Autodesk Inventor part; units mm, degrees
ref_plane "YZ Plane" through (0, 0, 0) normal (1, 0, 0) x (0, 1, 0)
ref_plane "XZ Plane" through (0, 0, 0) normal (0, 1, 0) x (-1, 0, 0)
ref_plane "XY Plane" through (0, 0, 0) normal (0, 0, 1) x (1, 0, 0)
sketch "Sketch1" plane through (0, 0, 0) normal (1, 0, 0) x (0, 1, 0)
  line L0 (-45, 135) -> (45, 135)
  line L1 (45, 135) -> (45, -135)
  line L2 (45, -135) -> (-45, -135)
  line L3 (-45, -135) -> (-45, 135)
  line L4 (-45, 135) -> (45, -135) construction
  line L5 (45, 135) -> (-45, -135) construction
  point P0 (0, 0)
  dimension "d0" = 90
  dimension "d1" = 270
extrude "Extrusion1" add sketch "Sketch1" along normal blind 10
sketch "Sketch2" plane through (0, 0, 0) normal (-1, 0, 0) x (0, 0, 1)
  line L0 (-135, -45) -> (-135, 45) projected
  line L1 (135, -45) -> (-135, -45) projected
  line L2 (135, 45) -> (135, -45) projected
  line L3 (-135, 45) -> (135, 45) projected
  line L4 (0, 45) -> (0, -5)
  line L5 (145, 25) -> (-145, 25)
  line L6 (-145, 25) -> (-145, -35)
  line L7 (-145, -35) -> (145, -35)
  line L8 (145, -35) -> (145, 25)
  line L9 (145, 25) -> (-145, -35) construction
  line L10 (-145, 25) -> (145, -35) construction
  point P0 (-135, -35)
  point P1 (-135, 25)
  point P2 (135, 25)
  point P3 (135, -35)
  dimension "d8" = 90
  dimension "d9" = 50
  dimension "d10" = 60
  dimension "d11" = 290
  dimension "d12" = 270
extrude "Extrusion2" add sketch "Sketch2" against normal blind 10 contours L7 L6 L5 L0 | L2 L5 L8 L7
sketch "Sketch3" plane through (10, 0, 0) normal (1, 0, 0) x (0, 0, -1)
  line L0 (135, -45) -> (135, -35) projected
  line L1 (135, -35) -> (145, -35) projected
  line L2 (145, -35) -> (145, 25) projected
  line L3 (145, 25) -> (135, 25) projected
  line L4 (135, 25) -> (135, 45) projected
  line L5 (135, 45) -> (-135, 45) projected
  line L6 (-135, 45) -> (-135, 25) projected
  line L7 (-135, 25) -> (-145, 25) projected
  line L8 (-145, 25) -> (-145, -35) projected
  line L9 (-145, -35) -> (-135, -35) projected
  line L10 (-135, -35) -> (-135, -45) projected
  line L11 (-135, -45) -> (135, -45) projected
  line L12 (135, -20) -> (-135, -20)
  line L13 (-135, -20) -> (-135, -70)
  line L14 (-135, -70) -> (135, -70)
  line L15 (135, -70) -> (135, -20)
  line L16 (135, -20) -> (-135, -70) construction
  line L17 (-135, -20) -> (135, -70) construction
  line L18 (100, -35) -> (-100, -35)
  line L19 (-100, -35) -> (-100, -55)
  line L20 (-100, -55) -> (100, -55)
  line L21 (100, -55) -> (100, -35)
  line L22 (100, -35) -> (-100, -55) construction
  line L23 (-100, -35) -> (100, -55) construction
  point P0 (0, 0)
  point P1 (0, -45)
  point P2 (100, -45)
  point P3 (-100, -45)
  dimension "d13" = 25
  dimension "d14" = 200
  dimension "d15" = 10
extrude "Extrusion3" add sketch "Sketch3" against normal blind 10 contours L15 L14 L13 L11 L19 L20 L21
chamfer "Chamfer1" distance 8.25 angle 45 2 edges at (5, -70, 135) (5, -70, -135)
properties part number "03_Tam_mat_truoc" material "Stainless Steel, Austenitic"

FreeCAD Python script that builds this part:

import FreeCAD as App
import Part
import Sketcher
from FreeCAD import Vector


def edges_at(feature, points):
    """Names of the edges that pass closest to the given points."""
    edges = feature.Shape.Edges
    near = lambda p: min(range(len(edges)), key=lambda i: edges[i].distToShape(Part.Vertex(*p))[0])
    return sorted({f"Edge{near(p) + 1}" for p in points})


def add_polygon(sketch, points):
    """Adds a closed chain of lines whose ends are joined by coincident constraints."""
    first, n = sketch.GeometryCount, len(points)
    for a, b in zip(points, points[1:] + points[:1]):
        sketch.addGeometry(Part.LineSegment(App.Vector(*a, 0), App.Vector(*b, 0)), False)
    for i in range(n):
        sketch.addConstraint(Sketcher.Constraint("Coincident", first + i, 2, first + (i + 1) % n, 1))

doc = App.newDocument("Part")
body = doc.addObject("PartDesign::Body", "Body")

sketch1 = body.newObject("Sketcher::SketchObject", "Sketch")
sketch1.AttachmentSupport = (doc.getObject("YZ_Plane"), [""])
sketch1.MapMode = "FlatFace"
add_polygon(sketch1, [(45, 135), (-45, 135), (-45, -135), (45, -135)])
sketch1.addConstraint(Sketcher.Constraint("Horizontal", 0))
sketch1.addConstraint(Sketcher.Constraint("Vertical", 1))
sketch1.addConstraint(Sketcher.Constraint("Horizontal", 2))
sketch1.addConstraint(Sketcher.Constraint("Vertical", 3))
sketch1.addConstraint(Sketcher.Constraint("Symmetric", 0, 2, 2, 2, -1, 1))
sketch1.addConstraint(Sketcher.Constraint("DistanceX", 0, 2, 0, 1, 90.0))
sketch1.addConstraint(Sketcher.Constraint("DistanceY", 1, 2, 1, 1, 270.0))
pad1 = body.newObject("PartDesign::Pad", "Pad")
pad1.Profile = sketch1
pad1.Length = 10

sketch2 = body.newObject("Sketcher::SketchObject", "Sketch001")
sketch2.AttachmentSupport = (doc.getObject("YZ_Plane"), [""])
sketch2.MapMode = "FlatFace"
add_polygon(sketch2, [(-35, -145), (-35, -135), (25, -135), (25, -145)])
add_polygon(sketch2, [(25, 135), (-35, 135), (-35, 145), (25, 145)])
sketch2.addConstraint(Sketcher.Constraint("Vertical", 0))
sketch2.addConstraint(Sketcher.Constraint("Horizontal", 1))
sketch2.addConstraint(Sketcher.Constraint("Vertical", 2))
sketch2.addConstraint(Sketcher.Constraint("Horizontal", 3))
sketch2.addConstraint(Sketcher.Constraint("Horizontal", 4))
sketch2.addConstraint(Sketcher.Constraint("Vertical", 5))
sketch2.addConstraint(Sketcher.Constraint("Horizontal", 6))
sketch2.addConstraint(Sketcher.Constraint("Vertical", 7))
sketch2.addConstraint(Sketcher.Constraint("Symmetric", 0, 2, 4, 2, -1))
sketch2.addConstraint(Sketcher.Constraint("Symmetric", 2, 2, 6, 2, -1))
sketch2.addConstraint(Sketcher.Constraint("DistanceX", 1, 1, 1, 2, 60.0))
sketch2.addConstraint(Sketcher.Constraint("DistanceY", 0, 2, 4, 2, 270.0))
sketch2.addConstraint(Sketcher.Constraint("DistanceY", 3, 2, 5, 2, 290.0))
sketch2.addConstraint(Sketcher.Constraint("DistanceX", 0, 2, -1, 1, 35.0))
pad2 = body.newObject("PartDesign::Pad", "Pad001")
pad2.Profile = sketch2
pad2.Length = 10

sketch3 = body.newObject("Sketcher::SketchObject", "Sketch002")
sketch3.AttachmentSupport = (doc.getObject("YZ_Plane"), [""])
sketch3.MapMode = "FlatFace"
sketch3.AttachmentOffset = App.Placement(Vector(0, 0, 10), App.Rotation())
add_polygon(sketch3, [(-70, -135), (-45, -135), (-45, -100), (-55, -100), (-55, 100), (-45, 100), (-45, 135), (-70, 135)])
sketch3.addConstraint(Sketcher.Constraint("Horizontal", 0))
sketch3.addConstraint(Sketcher.Constraint("Vertical", 1))
sketch3.addConstraint(Sketcher.Constraint("Horizontal", 2))
sketch3.addConstraint(Sketcher.Constraint("Vertical", 3))
sketch3.addConstraint(Sketcher.Constraint("Horizontal", 4))
sketch3.addConstraint(Sketcher.Constraint("Vertical", 5))
sketch3.addConstraint(Sketcher.Constraint("Horizontal", 6))
sketch3.addConstraint(Sketcher.Constraint("Vertical", 7))
sketch3.addConstraint(Sketcher.Constraint("Symmetric", 1, 2, 4, 2, -1))
sketch3.addConstraint(Sketcher.Constraint("Equal", 1, 5))
sketch3.addConstraint(Sketcher.Constraint("DistanceX", 0, 1, 0, 2, 25.0))
sketch3.addConstraint(Sketcher.Constraint("DistanceX", 2, 2, 2, 1, 10.0))
sketch3.addConstraint(Sketcher.Constraint("DistanceY", 3, 1, 3, 2, 200.0))
sketch3.addConstraint(Sketcher.Constraint("DistanceY", 1, 1, 1, 2, 35.0))
sketch3.addConstraint(Sketcher.Constraint("DistanceX", 0, 2, -1, 1, 45.0))
pad3 = body.newObject("PartDesign::Pad", "Pad002")
pad3.Profile = sketch3
pad3.Length = 10
pad3.Reversed = True
doc.recompute()

chamfer = body.newObject("PartDesign::Chamfer", "Chamfer")
chamfer.Base = (pad3, edges_at(pad3, [(5, -70, 135), (5, -70, -135)]))
chamfer.Size = 8.25

doc.recompute()
